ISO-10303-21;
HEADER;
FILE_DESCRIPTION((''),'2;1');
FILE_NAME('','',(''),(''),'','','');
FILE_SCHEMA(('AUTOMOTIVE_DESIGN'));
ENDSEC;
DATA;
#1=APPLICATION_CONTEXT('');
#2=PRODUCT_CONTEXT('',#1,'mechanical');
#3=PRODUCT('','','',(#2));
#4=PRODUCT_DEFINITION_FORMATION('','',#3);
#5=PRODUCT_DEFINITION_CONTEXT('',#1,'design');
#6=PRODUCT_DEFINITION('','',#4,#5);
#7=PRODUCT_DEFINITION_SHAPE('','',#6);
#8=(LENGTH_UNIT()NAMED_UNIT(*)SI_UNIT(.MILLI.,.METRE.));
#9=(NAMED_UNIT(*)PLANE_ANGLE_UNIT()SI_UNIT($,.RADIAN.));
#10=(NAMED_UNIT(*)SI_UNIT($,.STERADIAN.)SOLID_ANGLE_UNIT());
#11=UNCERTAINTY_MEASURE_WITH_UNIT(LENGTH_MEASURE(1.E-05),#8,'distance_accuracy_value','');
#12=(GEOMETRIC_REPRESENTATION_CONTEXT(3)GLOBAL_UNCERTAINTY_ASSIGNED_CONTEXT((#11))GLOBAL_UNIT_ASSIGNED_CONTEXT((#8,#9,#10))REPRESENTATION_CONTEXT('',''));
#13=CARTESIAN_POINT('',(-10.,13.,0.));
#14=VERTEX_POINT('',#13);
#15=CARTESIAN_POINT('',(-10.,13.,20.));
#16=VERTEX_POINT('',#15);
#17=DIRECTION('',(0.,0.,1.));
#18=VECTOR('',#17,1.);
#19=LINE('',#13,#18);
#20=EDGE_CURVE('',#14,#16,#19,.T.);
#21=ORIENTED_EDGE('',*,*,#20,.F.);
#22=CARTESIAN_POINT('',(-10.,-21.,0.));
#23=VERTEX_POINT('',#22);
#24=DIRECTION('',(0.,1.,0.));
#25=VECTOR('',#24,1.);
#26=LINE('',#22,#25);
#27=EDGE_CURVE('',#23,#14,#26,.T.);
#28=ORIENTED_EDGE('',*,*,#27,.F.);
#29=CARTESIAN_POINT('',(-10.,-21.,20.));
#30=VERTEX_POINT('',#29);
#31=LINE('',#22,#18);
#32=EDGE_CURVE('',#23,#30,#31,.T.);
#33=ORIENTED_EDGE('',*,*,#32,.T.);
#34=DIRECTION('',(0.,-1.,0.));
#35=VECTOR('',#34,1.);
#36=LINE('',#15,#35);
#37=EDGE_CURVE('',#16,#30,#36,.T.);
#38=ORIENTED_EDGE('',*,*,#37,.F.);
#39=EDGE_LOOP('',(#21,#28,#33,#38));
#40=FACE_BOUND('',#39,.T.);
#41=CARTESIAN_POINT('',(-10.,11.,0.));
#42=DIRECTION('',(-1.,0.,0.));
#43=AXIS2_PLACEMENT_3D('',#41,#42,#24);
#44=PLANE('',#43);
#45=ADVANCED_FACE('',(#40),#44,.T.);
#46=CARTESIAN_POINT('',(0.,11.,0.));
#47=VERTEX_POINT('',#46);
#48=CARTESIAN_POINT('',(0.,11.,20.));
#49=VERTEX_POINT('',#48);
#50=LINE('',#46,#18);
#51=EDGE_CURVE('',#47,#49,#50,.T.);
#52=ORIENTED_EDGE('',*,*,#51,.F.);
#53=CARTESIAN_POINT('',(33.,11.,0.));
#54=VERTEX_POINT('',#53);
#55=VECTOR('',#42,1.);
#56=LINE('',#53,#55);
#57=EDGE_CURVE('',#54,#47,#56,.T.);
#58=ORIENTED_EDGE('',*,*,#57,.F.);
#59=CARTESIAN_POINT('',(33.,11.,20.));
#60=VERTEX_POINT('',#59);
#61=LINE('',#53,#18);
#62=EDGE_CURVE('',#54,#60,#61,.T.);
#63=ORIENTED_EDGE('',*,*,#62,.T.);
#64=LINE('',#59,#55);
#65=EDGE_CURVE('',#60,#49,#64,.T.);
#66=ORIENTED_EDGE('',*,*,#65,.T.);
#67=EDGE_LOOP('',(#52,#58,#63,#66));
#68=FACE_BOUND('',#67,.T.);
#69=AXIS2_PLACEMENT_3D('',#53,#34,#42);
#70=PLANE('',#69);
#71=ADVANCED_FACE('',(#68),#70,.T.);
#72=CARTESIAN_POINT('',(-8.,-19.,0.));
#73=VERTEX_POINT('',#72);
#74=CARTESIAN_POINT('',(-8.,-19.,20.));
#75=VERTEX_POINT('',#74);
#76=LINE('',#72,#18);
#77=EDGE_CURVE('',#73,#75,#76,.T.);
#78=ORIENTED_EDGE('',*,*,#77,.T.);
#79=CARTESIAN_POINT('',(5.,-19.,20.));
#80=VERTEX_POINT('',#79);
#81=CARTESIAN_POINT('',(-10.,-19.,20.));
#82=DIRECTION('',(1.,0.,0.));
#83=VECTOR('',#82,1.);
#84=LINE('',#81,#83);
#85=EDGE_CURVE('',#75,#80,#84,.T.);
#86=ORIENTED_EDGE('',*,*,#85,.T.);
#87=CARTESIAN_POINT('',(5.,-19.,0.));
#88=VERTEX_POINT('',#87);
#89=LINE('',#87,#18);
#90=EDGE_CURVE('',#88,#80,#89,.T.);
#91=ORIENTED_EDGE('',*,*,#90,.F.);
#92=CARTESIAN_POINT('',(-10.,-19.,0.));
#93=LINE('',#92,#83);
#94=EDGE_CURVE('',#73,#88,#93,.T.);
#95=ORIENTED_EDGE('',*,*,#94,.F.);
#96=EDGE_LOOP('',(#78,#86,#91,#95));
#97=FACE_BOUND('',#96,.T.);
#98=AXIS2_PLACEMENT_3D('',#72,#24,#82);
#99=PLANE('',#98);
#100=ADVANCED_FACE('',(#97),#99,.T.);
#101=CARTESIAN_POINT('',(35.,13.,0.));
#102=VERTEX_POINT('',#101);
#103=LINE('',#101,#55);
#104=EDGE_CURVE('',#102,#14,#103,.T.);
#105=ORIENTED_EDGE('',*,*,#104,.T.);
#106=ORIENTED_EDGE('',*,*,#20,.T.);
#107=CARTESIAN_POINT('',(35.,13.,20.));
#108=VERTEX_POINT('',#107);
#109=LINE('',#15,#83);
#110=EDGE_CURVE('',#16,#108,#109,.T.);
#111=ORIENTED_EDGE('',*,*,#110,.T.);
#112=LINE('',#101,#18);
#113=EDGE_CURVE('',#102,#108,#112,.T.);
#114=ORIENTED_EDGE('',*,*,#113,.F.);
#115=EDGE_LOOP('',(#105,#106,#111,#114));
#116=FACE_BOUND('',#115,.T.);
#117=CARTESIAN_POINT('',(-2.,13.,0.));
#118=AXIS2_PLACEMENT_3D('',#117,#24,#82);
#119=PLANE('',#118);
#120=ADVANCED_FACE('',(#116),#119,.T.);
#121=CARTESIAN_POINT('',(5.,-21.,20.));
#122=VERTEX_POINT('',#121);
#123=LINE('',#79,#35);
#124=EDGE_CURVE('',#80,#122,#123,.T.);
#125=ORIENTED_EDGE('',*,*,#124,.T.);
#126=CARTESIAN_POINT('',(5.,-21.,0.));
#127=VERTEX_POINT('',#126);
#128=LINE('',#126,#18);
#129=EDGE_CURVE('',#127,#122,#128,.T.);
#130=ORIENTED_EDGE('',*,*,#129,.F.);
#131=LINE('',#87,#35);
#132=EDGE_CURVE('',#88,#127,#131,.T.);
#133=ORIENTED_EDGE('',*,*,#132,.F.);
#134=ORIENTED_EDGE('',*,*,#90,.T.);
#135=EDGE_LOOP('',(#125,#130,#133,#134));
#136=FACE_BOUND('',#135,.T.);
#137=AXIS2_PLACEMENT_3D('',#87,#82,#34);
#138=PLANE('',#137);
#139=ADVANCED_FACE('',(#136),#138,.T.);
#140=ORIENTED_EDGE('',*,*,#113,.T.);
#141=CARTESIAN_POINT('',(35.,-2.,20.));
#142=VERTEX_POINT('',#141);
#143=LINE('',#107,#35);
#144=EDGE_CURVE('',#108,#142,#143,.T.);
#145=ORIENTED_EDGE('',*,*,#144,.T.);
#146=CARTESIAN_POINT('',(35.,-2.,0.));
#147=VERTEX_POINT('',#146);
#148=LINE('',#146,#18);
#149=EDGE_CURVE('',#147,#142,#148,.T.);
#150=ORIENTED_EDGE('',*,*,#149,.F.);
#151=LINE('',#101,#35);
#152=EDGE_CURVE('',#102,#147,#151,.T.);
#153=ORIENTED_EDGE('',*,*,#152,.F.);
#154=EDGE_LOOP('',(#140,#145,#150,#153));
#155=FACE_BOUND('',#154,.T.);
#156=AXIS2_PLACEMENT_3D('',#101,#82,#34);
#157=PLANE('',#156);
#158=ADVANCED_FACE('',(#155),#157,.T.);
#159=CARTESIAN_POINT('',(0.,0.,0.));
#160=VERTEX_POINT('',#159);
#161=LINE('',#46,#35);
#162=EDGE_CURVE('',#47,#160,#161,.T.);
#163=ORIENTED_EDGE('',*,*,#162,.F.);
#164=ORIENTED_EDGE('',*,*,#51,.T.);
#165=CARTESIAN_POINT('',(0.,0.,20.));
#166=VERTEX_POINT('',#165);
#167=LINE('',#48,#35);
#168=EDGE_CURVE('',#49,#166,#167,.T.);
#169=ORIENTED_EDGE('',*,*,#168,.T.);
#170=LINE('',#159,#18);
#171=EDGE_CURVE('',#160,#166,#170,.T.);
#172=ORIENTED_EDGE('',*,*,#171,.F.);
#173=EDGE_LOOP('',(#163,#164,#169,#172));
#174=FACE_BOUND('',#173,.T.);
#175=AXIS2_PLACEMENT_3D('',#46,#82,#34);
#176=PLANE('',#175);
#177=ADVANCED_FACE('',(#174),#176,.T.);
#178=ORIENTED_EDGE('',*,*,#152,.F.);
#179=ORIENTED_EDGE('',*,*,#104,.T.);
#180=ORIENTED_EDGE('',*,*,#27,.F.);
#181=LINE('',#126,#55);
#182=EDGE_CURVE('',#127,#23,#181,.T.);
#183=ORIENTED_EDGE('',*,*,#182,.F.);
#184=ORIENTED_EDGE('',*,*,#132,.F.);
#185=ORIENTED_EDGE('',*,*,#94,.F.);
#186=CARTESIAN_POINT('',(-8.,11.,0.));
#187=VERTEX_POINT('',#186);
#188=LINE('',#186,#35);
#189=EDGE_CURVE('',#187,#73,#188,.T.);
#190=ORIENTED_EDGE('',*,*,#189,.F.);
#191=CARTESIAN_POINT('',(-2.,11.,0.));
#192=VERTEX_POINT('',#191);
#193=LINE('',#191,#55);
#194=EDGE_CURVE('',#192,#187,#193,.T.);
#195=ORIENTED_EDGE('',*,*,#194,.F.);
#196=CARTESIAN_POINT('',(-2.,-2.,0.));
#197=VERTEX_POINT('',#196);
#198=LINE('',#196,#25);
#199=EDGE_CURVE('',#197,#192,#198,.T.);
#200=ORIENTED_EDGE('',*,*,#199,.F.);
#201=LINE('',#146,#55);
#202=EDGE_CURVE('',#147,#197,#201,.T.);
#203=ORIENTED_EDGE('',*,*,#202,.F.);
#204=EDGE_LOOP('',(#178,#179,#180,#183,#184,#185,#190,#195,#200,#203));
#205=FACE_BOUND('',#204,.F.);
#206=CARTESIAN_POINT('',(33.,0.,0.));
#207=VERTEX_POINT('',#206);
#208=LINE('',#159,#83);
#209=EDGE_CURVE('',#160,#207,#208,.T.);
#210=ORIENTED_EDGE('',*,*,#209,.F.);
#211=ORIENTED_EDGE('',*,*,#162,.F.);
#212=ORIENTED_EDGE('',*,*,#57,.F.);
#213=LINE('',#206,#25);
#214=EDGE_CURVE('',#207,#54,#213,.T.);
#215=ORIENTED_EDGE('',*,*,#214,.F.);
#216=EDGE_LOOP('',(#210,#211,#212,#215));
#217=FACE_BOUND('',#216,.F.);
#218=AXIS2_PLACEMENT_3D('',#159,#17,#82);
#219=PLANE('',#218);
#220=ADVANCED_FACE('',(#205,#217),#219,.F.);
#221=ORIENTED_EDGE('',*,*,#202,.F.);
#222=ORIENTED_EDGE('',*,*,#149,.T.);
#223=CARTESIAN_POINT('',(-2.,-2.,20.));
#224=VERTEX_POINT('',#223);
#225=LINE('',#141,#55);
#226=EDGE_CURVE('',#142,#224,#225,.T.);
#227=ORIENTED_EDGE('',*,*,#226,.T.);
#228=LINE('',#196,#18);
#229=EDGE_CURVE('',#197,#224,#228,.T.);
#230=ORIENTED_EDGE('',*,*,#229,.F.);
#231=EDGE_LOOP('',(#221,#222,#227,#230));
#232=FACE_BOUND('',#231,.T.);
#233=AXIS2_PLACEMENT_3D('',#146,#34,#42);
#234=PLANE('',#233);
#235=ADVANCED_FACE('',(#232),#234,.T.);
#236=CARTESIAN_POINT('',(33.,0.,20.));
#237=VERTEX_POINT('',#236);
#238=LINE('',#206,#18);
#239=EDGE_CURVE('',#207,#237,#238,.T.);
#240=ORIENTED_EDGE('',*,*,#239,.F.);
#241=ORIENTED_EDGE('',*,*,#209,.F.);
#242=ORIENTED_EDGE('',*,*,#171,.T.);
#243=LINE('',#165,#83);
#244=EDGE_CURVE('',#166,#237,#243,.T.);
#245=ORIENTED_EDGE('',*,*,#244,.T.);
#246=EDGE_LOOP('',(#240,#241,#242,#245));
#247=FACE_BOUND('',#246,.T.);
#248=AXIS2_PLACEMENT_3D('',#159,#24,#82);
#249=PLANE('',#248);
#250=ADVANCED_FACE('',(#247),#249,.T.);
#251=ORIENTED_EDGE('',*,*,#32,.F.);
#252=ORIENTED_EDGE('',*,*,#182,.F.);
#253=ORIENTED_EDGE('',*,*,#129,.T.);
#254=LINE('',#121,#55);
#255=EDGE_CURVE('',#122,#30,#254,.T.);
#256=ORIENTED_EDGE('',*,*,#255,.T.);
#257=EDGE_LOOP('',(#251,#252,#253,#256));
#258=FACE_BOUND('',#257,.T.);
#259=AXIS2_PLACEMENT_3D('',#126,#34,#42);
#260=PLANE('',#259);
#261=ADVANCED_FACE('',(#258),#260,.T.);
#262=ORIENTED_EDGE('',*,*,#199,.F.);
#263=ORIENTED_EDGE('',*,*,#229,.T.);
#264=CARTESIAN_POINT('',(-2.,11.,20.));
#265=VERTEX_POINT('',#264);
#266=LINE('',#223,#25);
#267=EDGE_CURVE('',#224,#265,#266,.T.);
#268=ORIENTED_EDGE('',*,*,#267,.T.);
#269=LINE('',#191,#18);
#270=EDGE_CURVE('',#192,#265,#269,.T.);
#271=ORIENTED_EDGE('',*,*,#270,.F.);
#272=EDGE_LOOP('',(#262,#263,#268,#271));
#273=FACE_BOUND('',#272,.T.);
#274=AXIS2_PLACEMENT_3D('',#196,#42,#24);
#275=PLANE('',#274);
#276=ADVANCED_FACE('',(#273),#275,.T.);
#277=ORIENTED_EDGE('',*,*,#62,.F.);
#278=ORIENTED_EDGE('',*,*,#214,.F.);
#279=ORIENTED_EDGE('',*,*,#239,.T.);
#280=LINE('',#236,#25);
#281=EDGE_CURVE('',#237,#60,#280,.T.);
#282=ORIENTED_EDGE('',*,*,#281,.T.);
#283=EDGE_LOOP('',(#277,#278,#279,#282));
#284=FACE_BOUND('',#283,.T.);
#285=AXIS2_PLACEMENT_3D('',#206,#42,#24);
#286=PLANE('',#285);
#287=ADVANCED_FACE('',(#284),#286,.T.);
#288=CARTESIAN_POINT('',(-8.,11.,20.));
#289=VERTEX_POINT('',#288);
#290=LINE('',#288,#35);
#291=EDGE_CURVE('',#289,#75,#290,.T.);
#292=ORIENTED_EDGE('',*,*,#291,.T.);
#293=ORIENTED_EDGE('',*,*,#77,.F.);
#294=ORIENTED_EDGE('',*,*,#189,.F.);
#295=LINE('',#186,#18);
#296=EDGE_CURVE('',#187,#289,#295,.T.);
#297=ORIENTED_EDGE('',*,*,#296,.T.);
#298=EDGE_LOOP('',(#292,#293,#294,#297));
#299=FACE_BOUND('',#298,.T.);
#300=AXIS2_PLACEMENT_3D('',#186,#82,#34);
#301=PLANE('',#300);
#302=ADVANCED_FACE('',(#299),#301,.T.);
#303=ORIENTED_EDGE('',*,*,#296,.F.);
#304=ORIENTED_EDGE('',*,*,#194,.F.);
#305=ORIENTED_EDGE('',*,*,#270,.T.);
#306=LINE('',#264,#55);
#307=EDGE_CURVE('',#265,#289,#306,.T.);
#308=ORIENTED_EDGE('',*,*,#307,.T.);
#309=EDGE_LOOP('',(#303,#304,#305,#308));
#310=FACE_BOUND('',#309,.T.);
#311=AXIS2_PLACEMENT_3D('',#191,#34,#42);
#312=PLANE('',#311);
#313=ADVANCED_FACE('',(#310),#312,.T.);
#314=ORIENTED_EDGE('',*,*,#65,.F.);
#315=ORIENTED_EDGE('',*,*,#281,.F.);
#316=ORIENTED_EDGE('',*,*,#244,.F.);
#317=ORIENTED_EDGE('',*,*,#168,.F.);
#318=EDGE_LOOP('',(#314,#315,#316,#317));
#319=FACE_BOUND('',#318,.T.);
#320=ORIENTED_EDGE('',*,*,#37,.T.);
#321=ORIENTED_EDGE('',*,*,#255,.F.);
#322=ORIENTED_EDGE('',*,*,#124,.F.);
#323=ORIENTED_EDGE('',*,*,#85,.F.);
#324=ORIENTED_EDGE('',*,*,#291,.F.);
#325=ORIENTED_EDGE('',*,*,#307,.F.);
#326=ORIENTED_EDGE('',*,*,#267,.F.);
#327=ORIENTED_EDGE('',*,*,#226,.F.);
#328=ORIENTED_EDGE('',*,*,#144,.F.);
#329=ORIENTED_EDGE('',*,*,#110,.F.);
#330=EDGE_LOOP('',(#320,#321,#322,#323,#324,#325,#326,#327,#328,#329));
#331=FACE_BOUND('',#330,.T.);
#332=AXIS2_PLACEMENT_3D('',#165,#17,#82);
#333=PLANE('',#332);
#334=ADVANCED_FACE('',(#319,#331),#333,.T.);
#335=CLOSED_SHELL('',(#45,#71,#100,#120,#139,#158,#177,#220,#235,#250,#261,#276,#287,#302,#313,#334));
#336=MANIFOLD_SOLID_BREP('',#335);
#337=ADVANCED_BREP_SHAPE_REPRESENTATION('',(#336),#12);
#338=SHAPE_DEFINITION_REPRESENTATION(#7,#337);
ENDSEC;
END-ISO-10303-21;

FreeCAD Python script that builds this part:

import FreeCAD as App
import Part
import Sketcher
Q = App.Units.Quantity


def add_polygon(sketch, points):
    """Adds a closed chain of lines whose ends are joined by coincident constraints."""
    first, n = sketch.GeometryCount, len(points)
    for a, b in zip(points, points[1:] + points[:1]):
        sketch.addGeometry(Part.LineSegment(App.Vector(*a, 0), App.Vector(*b, 0)), False)
    for i in range(n):
        sketch.addConstraint(Sketcher.Constraint("Coincident", first + i, 2, first + (i + 1) % n, 1))

doc = App.newDocument("Part")
params = doc.addObject("Spreadsheet::Sheet", "Params")
for row, (alias, value) in enumerate([
    ("sketch1_width", "15 mm"),
    ("sketch1_width2", "33 mm"),
    ("sketch1_height", "2 mm"),
    ("sketch1_height2", "30 mm"),
    ("sketch1_height3", "11 mm"),
    ("pad1_length", "20 mm"),
], start=1):
    params.set(f"A{row}", alias)
    params.set(f"B{row}", "=" + value)
    params.setAlias(f"B{row}", alias)

body = doc.addObject("PartDesign::Body", "Body")

sketch1 = body.newObject("Sketcher::SketchObject", "Sketch")
sketch1.AttachmentSupport = (doc.getObject("XY_Plane"), [""])
sketch1.MapMode = "FlatFace"
add_polygon(sketch1, [(35, 13), (-10, 13), (-10, -21), (5, -21), (5, -19), (-8, -19), (-8, 11), (-2, 11), (-2, -2), (35, -2)])
add_polygon(sketch1, [(33, 0), (0, 0), (0, 11), (33, 11)])
sketch1.addConstraint([
    Sketcher.Constraint("Horizontal", 0),
    Sketcher.Constraint("Vertical", 1),
    Sketcher.Constraint("Horizontal", 2),
    Sketcher.Constraint("Vertical", 3),
    Sketcher.Constraint("Horizontal", 4),
    Sketcher.Constraint("Vertical", 5),
    Sketcher.Constraint("Horizontal", 6),
    Sketcher.Constraint("Vertical", 7),
    Sketcher.Constraint("Horizontal", 8),
    Sketcher.Constraint("Vertical", 9),
    Sketcher.Constraint("Horizontal", 10),
    Sketcher.Constraint("Vertical", 11),
    Sketcher.Constraint("Horizontal", 12),
    Sketcher.Constraint("Vertical", 13),
    Sketcher.Constraint("Coincident", 10, 2, -1, 1),
    Sketcher.Constraint("Horizontal", 6, 2, 11, 2),
    Sketcher.Constraint("Equal", 4, 7),
    Sketcher.Constraint("Equal", 2, 9),
    Sketcher.Constraint("DistanceX", 2, 1, 2, 2, Q("15 mm")),
    Sketcher.Constraint("DistanceX", 10, 2, 10, 1, Q("33 mm")),
    Sketcher.Constraint("DistanceY", 3, 1, 3, 2, Q("2 mm")),
    Sketcher.Constraint("DistanceY", 5, 1, 5, 2, Q("30 mm")),
    Sketcher.Constraint("DistanceY", 11, 1, 11, 2, Q("11 mm")),
    Sketcher.Constraint("DistanceX", 4, 2, -1, 1, Q("8 mm")),
    Sketcher.Constraint("DistanceX", 6, 2, -1, 1, Q("2 mm")),
    Sketcher.Constraint("DistanceY", 7, 2, -1, 1, Q("2 mm")),
    Sketcher.Constraint("DistanceX", 3, 2, 8, 2, Q("30 mm")),
])
sketch1.setExpression("Constraints[32]", "Params.sketch1_width")
sketch1.setExpression("Constraints[33]", "Params.sketch1_width2")
sketch1.setExpression("Constraints[34]", "Params.sketch1_height")
sketch1.setExpression("Constraints[35]", "Params.sketch1_height2")
sketch1.setExpression("Constraints[36]", "Params.sketch1_height3")
pad1 = body.newObject("PartDesign::Pad", "Pad")
pad1.Profile = sketch1
pad1.setExpression("Length", "Params.pad1_length")

doc.recompute()
